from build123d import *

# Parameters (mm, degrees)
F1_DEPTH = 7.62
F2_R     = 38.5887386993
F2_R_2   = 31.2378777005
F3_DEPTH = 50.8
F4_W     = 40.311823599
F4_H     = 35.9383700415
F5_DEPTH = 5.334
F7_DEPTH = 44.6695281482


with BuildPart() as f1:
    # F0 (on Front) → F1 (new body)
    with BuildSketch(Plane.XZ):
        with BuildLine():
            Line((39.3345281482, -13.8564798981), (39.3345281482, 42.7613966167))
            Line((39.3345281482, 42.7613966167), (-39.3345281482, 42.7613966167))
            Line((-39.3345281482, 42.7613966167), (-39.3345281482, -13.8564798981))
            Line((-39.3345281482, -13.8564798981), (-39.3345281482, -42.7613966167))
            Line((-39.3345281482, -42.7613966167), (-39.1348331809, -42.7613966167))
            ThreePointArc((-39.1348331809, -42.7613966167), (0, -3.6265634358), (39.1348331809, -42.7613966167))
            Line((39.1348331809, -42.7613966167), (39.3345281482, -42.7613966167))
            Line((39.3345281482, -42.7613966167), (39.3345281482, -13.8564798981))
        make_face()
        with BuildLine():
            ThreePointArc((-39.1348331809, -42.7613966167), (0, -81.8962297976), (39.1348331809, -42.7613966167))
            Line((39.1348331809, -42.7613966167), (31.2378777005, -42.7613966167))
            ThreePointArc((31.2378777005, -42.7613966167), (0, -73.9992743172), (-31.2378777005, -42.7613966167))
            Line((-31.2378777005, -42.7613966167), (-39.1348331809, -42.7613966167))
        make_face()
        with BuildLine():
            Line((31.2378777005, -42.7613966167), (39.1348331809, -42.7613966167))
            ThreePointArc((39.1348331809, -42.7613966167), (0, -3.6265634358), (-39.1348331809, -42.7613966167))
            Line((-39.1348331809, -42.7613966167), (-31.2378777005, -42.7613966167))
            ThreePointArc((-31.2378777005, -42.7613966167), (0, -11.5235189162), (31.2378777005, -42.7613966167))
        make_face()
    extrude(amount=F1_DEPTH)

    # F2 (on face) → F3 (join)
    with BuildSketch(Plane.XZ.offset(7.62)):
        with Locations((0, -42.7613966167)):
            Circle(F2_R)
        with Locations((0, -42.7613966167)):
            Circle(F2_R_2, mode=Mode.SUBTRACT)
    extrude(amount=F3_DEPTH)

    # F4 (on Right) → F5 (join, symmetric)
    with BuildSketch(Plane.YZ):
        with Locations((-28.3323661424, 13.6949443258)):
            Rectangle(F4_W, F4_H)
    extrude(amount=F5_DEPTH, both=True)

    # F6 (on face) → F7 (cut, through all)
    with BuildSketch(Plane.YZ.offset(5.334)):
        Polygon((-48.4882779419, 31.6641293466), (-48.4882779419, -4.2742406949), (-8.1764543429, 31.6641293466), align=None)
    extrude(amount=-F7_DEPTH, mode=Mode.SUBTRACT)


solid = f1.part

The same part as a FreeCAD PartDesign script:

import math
import FreeCAD as App
import Part
import Sketcher
Q = App.Units.Quantity

doc = App.newDocument("Part")
body = doc.addObject("PartDesign::Body", "Body")

sketch1 = doc.addObject("Sketcher::SketchObject", "Sketch")
body.addObject(sketch1)
sketch1.AttachmentSupport = (doc.XZ_Plane, [""])
sketch1.MapMode = "FlatFace"
sketch1.addGeometry([
    Part.LineSegment(App.Vector(39.33, 42.76, 0), App.Vector(-39.33, 42.76, 0)),
    Part.LineSegment(App.Vector(-39.33, 42.76, 0), App.Vector(-39.33, -42.76, 0)),
    Part.LineSegment(App.Vector(-39.33, -42.76, 0), App.Vector(-39.13, -42.76, 0)),
    Part.ArcOfCircle(Part.Circle(App.Vector(0, -42.76, 0), App.Vector(0, 0, 1), 39.13), math.radians(180), math.radians(360)),
    Part.LineSegment(App.Vector(39.13, -42.76, 0), App.Vector(39.33, -42.76, 0)),
    Part.LineSegment(App.Vector(39.33, -42.76, 0), App.Vector(39.33, 42.76, 0)),
    Part.Circle(App.Vector(0, -42.76, 0), App.Vector(0, 0, 1), 31.24),
], False)
sketch1.addConstraint([
    Sketcher.Constraint("Coincident", 0, 2, 1, 1),
    Sketcher.Constraint("Coincident", 1, 2, 2, 1),
    Sketcher.Constraint("Coincident", 2, 2, 3, 1),
    Sketcher.Constraint("Coincident", 3, 2, 4, 1),
    Sketcher.Constraint("Coincident", 4, 2, 5, 1),
    Sketcher.Constraint("Coincident", 5, 2, 0, 1),
    Sketcher.Constraint("Horizontal", 0),
    Sketcher.Constraint("Vertical", 1),
    Sketcher.Constraint("Horizontal", 2),
    Sketcher.Constraint("Horizontal", 4),
    Sketcher.Constraint("Vertical", 5),
    Sketcher.Constraint("Coincident", 6, 3, 3, 3),
    Sketcher.Constraint("Symmetric", 0, 2, 4, 2, -1, 1),
    Sketcher.Constraint("Symmetric", 2, 2, 3, 2, -2),
    Sketcher.Constraint("Horizontal", 6, 3, 1, 2),
    Sketcher.Constraint("Diameter", 6, Q("62.475755 mm")),
    Sketcher.Constraint("Radius", 3, Q("39.134833 mm")),
    Sketcher.Constraint("DistanceX", 0, 2, 0, 1, Q("78.669056 mm")),
    Sketcher.Constraint("DistanceY", 1, 2, 1, 1, Q("85.522793 mm")),
])
pad1 = doc.addObject("PartDesign::Pad", "Pad")
body.addObject(pad1)
pad1.Profile = sketch1
pad1.Length = Q("0.3 in")

sketch2 = doc.addObject("Sketcher::SketchObject", "Sketch001")
body.addObject(sketch2)
sketch2.AttachmentSupport = (doc.XZ_Plane, [""])
sketch2.MapMode = "FlatFace"
sketch2.AttachmentOffset = App.Placement(App.Vector(0, 0, 0.3 * 25.4), App.Rotation())
sketch2.addGeometry([
    Part.Circle(App.Vector(0, -43, 0), App.Vector(0, 0, 1), 39),
    Part.Circle(App.Vector(0, -43, 0), App.Vector(0, 0, 1), 31),
], False)
sketch2.addConstraint([
    Sketcher.Constraint("Coincident", 1, 3, 0, 3),
    Sketcher.Constraint("PointOnObject", 0, 3, -2),
    Sketcher.Constraint("Diameter", 0, Q("77.177477 mm")),
    Sketcher.Constraint("Diameter", 1, Q("62.475755 mm")),
    Sketcher.Constraint("DistanceY", 0, 3, -1, 1, Q("42.761397 mm")),
])
pad2 = doc.addObject("PartDesign::Pad", "Pad001")
body.addObject(pad2)
pad2.Profile = sketch2
pad2.Length = Q("2 in")

sketch3 = doc.addObject("Sketcher::SketchObject", "Sketch002")
body.addObject(sketch3)
sketch3.AttachmentSupport = (doc.YZ_Plane, [""])
sketch3.MapMode = "FlatFace"
sketch3.addGeometry([
    Part.LineSegment(App.Vector(-48, 32, 0), App.Vector(-48, -4, 0)),
    Part.LineSegment(App.Vector(-48, -4, 0), App.Vector(-8, -4, 0)),
    Part.LineSegment(App.Vector(-8, -4, 0), App.Vector(-8, 32, 0)),
    Part.LineSegment(App.Vector(-8, 32, 0), App.Vector(-48, 32, 0)),
], False)
sketch3.addConstraint([
    Sketcher.Constraint("Coincident", 0, 2, 1, 1),
    Sketcher.Constraint("Coincident", 1, 2, 2, 1),
    Sketcher.Constraint("Coincident", 2, 2, 3, 1),
    Sketcher.Constraint("Coincident", 3, 2, 0, 1),
    Sketcher.Constraint("Vertical", 0),
    Sketcher.Constraint("Horizontal", 1),
    Sketcher.Constraint("Vertical", 2),
    Sketcher.Constraint("Horizontal", 3),
    Sketcher.Constraint("DistanceY", 0, 2, 0, 1, Q("35.93837 mm")),
    Sketcher.Constraint("DistanceX", 1, 1, 1, 2, Q("40.311824 mm")),
    Sketcher.Constraint("DistanceY", 0, 2, -1, 1, Q("4.274241 mm")),
    Sketcher.Constraint("DistanceX", 0, 2, -1, 1, Q("48.488278 mm")),
])
pad3 = doc.addObject("PartDesign::Pad", "Pad002")
body.addObject(pad3)
pad3.Profile = sketch3
pad3.Length = Q("0.42 in")
pad3.Midplane = True

sketch4 = doc.addObject("Sketcher::SketchObject", "Sketch003")
body.addObject(sketch4)
sketch4.AttachmentSupport = (doc.YZ_Plane, [""])
sketch4.MapMode = "FlatFace"
sketch4.AttachmentOffset = App.Placement(App.Vector(0, 0, 0.21 * 25.4), App.Rotation())
sketch4.addGeometry([
    Part.LineSegment(App.Vector(-48, 32, 0), App.Vector(-48, -4, 0)),
    Part.LineSegment(App.Vector(-48, -4, 0), App.Vector(-8, 32, 0)),
    Part.LineSegment(App.Vector(-8, 32, 0), App.Vector(-48, 32, 0)),
], False)
sketch4.addConstraint([
    Sketcher.Constraint("Coincident", 0, 2, 1, 1),
    Sketcher.Constraint("Coincident", 1, 2, 2, 1),
    Sketcher.Constraint("Coincident", 2, 2, 0, 1),
    Sketcher.Constraint("Vertical", 0),
    Sketcher.Constraint("Horizontal", 2),
    Sketcher.Constraint("DistanceY", 0, 2, 0, 1, Q("35.93837 mm")),
    Sketcher.Constraint("DistanceX", 2, 2, 2, 1, Q("40.311824 mm")),
    Sketcher.Constraint("DistanceY", 0, 2, -1, 1, Q("4.274241 mm")),
    Sketcher.Constraint("DistanceX", 0, 2, -1, 1, Q("48.488278 mm")),
])
pocket1 = doc.addObject("PartDesign::Pocket", "Pocket")
body.addObject(pocket1)
pocket1.Profile = sketch4
pocket1.Type = "ThroughAll"

doc.recompute()
